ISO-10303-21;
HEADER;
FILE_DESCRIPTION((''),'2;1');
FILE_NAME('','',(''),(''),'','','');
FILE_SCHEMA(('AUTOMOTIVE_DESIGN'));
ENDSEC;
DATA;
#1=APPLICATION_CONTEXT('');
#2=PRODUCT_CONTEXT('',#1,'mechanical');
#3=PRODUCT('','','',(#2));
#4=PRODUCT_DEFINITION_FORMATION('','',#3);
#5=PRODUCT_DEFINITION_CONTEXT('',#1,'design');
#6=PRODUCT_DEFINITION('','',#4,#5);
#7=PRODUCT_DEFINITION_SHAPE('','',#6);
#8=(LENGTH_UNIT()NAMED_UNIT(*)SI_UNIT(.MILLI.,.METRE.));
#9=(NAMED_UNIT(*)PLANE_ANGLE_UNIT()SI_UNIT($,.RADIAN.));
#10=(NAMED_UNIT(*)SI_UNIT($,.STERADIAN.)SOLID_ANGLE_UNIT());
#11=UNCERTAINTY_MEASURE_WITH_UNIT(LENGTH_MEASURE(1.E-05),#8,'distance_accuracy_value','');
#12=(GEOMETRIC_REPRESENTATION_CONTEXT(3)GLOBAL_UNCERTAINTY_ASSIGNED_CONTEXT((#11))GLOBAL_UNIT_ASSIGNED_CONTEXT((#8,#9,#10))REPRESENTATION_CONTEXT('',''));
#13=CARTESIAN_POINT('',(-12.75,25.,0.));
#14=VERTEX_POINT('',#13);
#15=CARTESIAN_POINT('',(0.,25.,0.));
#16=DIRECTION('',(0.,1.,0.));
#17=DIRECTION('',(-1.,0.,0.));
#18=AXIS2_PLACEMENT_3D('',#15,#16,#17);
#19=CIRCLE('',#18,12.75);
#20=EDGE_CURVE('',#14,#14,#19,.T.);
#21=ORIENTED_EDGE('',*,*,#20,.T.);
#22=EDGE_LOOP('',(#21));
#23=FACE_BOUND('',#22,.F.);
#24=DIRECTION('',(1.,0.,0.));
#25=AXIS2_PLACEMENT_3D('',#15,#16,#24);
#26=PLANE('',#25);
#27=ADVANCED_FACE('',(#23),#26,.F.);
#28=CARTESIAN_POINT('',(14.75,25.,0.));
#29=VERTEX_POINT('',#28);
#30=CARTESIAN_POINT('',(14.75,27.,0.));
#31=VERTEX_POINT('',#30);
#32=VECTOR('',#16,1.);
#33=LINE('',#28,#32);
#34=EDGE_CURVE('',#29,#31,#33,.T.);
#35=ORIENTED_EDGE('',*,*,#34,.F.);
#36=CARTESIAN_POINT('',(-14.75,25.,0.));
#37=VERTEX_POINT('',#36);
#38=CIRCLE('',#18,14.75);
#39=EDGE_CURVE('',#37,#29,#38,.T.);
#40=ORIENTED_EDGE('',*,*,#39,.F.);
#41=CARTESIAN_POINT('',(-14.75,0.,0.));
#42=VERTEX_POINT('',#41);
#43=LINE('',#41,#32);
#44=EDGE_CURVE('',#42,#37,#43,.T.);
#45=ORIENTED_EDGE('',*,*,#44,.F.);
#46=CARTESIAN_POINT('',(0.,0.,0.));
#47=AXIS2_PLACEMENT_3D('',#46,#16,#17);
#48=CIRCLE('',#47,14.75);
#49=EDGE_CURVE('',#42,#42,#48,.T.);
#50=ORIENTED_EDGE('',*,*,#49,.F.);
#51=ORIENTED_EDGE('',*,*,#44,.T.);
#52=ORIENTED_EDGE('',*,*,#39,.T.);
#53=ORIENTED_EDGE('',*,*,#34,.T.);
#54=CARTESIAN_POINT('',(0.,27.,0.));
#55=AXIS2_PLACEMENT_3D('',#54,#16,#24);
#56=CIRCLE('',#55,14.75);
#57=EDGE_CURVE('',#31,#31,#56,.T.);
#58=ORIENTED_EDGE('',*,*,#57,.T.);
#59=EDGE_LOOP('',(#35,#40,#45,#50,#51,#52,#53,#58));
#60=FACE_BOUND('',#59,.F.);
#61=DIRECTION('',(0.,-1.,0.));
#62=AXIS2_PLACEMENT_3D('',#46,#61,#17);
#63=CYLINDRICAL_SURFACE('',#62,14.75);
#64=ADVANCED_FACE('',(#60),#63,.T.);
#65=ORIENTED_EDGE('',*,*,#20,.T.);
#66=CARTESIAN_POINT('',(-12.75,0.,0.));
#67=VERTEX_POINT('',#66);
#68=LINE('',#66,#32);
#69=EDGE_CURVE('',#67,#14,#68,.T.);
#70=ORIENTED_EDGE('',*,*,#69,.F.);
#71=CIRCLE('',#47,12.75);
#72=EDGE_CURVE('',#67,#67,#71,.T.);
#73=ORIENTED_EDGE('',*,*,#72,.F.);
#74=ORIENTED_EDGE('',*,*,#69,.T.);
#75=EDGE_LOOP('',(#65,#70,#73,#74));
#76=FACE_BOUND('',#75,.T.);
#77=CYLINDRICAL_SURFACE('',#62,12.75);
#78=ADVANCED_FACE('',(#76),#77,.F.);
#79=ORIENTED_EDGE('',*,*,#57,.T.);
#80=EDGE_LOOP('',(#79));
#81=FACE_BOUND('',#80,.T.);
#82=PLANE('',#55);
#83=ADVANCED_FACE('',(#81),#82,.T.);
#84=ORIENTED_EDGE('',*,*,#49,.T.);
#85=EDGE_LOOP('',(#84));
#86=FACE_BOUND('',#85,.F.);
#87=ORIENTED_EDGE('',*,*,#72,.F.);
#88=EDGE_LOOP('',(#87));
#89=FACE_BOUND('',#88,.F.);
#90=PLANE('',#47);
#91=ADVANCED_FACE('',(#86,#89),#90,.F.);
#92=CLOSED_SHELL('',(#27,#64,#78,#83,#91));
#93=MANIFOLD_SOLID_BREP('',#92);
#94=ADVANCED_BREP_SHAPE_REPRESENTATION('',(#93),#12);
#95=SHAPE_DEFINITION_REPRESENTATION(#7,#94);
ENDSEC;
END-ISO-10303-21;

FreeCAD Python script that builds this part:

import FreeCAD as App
import Part
import Sketcher
from FreeCAD import Vector

doc = App.newDocument("Part")
body = doc.addObject("PartDesign::Body", "Body")

# Sketch on XZ plane
sketch1 = doc.addObject("Sketcher::SketchObject", "Sketch")
body.addObject(sketch1)
sketch1.AttachmentSupport = (doc.XZ_Plane, [""])
sketch1.MapMode = "FlatFace"
sketch1.addGeometry([
    Part.Circle(Vector(0, 0, 0), Vector(0, 0, 1), 15),
    Part.Circle(Vector(0, 0, 0), Vector(0, 0, 1), 13),
], False)
sketch1.addConstraint([
    Sketcher.Constraint("Coincident", 0, 3, -1, 1),
    Sketcher.Constraint("Coincident", 1, 3, -1, 1),
    Sketcher.Constraint("Diameter", 1, 25.5),
    Sketcher.Constraint("Diameter", 0, 29.5),
])
pad1 = doc.addObject("PartDesign::Pad", "Pad")
body.addObject(pad1)
pad1.Profile = sketch1
pad1.Length = 25
pad1.Reversed = True

# Sketch on XZ plane
sketch2 = doc.addObject("Sketcher::SketchObject", "Sketch001")
body.addObject(sketch2)
sketch2.AttachmentSupport = (doc.XZ_Plane, [""])
sketch2.MapMode = "FlatFace"
sketch2.AttachmentOffset = App.Placement(Vector(0, 0, -25), App.Rotation())
sketch2.addGeometry(Part.Circle(Vector(0, 0, 0), Vector(0, 0, 1), 15), False)
sketch2.addConstraint([
    Sketcher.Constraint("Coincident", 0, 3, -1, 1),
    Sketcher.Constraint("Diameter", 0, 29.5),
])
pad2 = doc.addObject("PartDesign::Pad", "Pad001")
body.addObject(pad2)
pad2.Profile = sketch2
pad2.Length = 2
pad2.Reversed = True

doc.recompute()
